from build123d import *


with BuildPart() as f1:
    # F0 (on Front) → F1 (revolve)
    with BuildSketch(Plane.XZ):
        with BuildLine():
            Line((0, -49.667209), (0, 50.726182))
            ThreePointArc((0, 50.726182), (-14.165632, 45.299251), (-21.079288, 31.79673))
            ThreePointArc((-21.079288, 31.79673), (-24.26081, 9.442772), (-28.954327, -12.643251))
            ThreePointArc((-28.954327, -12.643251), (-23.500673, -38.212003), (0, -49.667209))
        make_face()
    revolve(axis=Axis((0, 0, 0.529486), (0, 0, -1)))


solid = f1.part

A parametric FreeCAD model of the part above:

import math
import FreeCAD as App
import Part
import Sketcher

V = App.Vector
Q = App.Units.Quantity

doc = App.newDocument("Part")
body = doc.addObject("PartDesign::Body", "Body")

# Sketch on XZ plane
sketch1 = doc.addObject("Sketcher::SketchObject", "Sketch")
body.addObject(sketch1)
sketch1.AttachmentSupport = (doc.XZ_Plane, [""])
sketch1.MapMode = "FlatFace"
sketch1.addGeometry([
    Part.LineSegment(V(0, -50, 0), V(0, 51, 0)),
    Part.ArcOfCircle(Part.Circle(V(0, 30, 0), V(0, 0, 1), 21), math.radians(90), math.radians(174)),
    Part.ArcOfCircle(Part.Circle(V(-351, 67, 0), V(0, 0, 1), 332), math.radians(-13.95), math.radians(-6.15)),
    Part.ArcOfCircle(Part.Circle(V(0, -20, 0), V(0, 0, 1), 30), math.radians(166), math.radians(270)),
], False)
sketch1.addConstraint([
    Sketcher.Constraint("Coincident", 0, 2, 1, 1),
    Sketcher.Constraint("Tangent", 1, 2, 2, 2),
    Sketcher.Constraint("Tangent", 2, 1, 3, 1),
    Sketcher.Constraint("Coincident", 3, 2, 0, 1),
    Sketcher.Constraint("Vertical", 0),
    Sketcher.Constraint("PointOnObject", 1, 3, -2),
    Sketcher.Constraint("PointOnObject", 3, 3, -2),
    Sketcher.Constraint("PointOnObject", 0, 2, -2),
    Sketcher.Constraint("Radius", 2, Q("332.012021 mm")),
    Sketcher.Constraint("Radius", 1, Q("21.201368 mm")),
    Sketcher.Constraint("Radius", 3, Q("29.833743 mm")),
    Sketcher.Constraint("DistanceY", 0, 1, 0, 2, Q("100.393391 mm")),
    Sketcher.Constraint("DistanceY", -1, 1, 2, 3, Q("67.374791 mm")),
])
revolution = doc.addObject("PartDesign::Revolution", "Revolution")
body.addObject(revolution)
revolution.Profile = sketch1
revolution.ReferenceAxis = (sketch1, ["V_Axis"])
revolution.Angle = 360

doc.recompute()
